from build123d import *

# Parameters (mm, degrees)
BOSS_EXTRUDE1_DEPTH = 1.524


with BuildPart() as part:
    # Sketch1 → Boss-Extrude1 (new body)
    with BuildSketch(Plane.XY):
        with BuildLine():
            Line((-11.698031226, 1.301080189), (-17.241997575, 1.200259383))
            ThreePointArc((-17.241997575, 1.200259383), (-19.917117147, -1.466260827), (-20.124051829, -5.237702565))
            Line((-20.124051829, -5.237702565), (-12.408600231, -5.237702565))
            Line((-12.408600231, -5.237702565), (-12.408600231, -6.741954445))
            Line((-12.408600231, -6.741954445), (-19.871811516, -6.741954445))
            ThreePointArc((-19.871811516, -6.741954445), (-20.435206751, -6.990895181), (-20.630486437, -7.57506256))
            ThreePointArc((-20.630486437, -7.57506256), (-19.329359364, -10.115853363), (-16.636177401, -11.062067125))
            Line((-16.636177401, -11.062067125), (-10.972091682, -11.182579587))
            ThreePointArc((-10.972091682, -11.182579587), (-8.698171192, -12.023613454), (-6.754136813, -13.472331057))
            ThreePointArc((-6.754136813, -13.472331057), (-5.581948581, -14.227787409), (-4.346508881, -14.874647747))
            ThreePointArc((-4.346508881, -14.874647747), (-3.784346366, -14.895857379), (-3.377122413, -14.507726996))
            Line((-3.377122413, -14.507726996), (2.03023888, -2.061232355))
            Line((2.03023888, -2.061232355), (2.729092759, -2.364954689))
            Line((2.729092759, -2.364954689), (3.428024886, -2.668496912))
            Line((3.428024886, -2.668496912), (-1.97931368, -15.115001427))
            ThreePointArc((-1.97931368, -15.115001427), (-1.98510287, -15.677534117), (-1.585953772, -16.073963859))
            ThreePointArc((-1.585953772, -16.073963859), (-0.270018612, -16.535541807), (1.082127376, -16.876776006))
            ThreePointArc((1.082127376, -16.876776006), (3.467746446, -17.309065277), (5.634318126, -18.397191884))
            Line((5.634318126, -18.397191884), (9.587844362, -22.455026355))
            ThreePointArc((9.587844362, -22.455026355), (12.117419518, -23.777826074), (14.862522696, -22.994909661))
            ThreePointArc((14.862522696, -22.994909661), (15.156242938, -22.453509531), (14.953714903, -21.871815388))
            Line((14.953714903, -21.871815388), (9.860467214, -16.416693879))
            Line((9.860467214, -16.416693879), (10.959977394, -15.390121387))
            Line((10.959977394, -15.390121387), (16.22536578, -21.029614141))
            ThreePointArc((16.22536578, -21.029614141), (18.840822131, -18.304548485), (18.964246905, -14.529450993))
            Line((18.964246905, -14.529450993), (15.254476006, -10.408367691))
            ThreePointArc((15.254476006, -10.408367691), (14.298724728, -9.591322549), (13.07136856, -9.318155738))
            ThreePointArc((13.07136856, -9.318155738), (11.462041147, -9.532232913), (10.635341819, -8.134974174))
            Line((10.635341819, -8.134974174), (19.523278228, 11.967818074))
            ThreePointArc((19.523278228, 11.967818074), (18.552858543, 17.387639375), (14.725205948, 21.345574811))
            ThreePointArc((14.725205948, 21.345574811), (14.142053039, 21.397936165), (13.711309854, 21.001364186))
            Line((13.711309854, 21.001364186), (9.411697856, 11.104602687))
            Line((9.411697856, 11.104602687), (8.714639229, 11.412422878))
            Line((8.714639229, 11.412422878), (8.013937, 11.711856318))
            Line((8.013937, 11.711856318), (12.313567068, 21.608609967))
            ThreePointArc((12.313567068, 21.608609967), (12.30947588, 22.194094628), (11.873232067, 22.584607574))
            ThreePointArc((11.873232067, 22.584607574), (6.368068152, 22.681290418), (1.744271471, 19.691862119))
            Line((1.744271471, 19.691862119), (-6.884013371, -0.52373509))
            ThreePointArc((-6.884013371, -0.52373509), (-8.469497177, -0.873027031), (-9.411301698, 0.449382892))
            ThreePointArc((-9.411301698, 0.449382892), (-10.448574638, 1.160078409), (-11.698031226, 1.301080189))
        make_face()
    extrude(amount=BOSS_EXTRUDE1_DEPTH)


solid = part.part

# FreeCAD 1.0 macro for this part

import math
import FreeCAD as App
import Part
import Sketcher
from FreeCAD import Vector
Q = App.Units.Quantity

doc = App.newDocument("Part")
params = doc.addObject("Spreadsheet::Sheet", "Params")
for row, (alias, value) in enumerate([
    ("sketch1_radius", "0.03 in"),
    ("sketch1_radius2", "0.03 in"),
    ("sketch1_length", "0.03 in"),
    ("sketch1_length2", "0.03 in"),
    ("sketch1_length3", "0.03 in"),
    ("pad1_length", "0.06 in"),
], start=1):
    params.set(f"A{row}", alias)
    params.set(f"B{row}", "=" + value)
    params.setAlias(f"B{row}", alias)

body = doc.addObject("PartDesign::Body", "Body")

sketch1 = doc.addObject("Sketcher::SketchObject", "Sketch")
body.addObject(sketch1)
sketch1.AttachmentSupport = (doc.XY_Plane, [""])
sketch1.MapMode = "FlatFace"
sketch1.addGeometry([
    Part.LineSegment(Vector(-11.698031, 1.30108, 0), Vector(-17.241998, 1.200259, 0)),
    Part.ArcOfCircle(Part.Circle(Vector(-15.10191, -3.621864, 0), Vector(0, 0, 1), 5.275685), math.radians(113.931944), math.radians(197.835213)),
    Part.LineSegment(Vector(-20.124052, -5.237703, 0), Vector(-12.4086, -5.237703, 0)),
    Part.LineSegment(Vector(-12.4086, -5.237703, 0), Vector(-12.4086, -6.741954, 0)),
    Part.LineSegment(Vector(-12.4086, -6.741954, 0), Vector(-19.871812, -6.741954, 0)),
    Part.ArcOfCircle(Part.Circle(Vector(-19.871812, -7.503954, 0), Vector(0, 0, 1), 0.762), math.radians(90), math.radians(185.354503)),
    Part.ArcOfCircle(Part.Circle(Vector(-16.797667, -7.21584, 0), Vector(0, 0, 1), 3.849616), math.radians(-174.645716), math.radians(-87.59576)),
    Part.LineSegment(Vector(-16.636177, -11.062067, 0), Vector(-10.972092, -11.18258, 0)),
    Part.ArcOfCircle(Part.Circle(Vector(-12.753955, -19.494779, 0), Vector(0, 0, 1), 8.501041), math.radians(45.107849), math.radians(77.900778)),
    Part.ArcOfCircle(Part.Circle(Vector(2.20638, -0.85606, 0), Vector(0, 0, 1), 15.474533), math.radians(-125.3837), math.radians(-115.053401)),
    Part.ArcOfCircle(Part.Circle(Vector(-4.040314, -14.219605, 0), Vector(0, 0, 1), 0.723075), math.radians(-115.053401), math.radians(-23.482465)),
    Part.LineSegment(Vector(-3.377122, -14.507727, 0), Vector(2.030239, -2.061232, 0)),
    Part.LineSegment(Vector(2.030239, -2.061232, 0), Vector(2.729093, -2.364955, 0)),
    Part.LineSegment(Vector(2.729093, -2.364955, 0), Vector(3.428025, -2.668497, 0)),
    Part.LineSegment(Vector(3.428025, -2.668497, 0), Vector(-1.979314, -15.115001, 0)),
    Part.ArcOfCircle(Part.Circle(Vector(-1.316122, -15.403123, 0), Vector(0, 0, 1), 0.723075), math.radians(156.517639), math.radians(248.088575)),
    Part.ArcOfCircle(Part.Circle(Vector(4.188721, -1.717282, 0), Vector(0, 0, 1), 15.474533), math.radians(-111.911425), math.radians(-101.581126)),
    Part.ArcOfCircle(Part.Circle(Vector(0.774669, -25.372255, 0), Vector(0, 0, 1), 8.501041), math.radians(55.134396), math.radians(87.927324)),
    Part.LineSegment(Vector(5.634318, -18.397192, 0), Vector(9.587844, -22.455026, 0)),
    Part.ArcOfCircle(Part.Circle(Vector(12.509394, -19.948218, 0), Vector(0, 0, 1), 3.849616), math.radians(-139.369067), math.radians(-52.319111)),
    Part.ArcOfCircle(Part.Circle(Vector(14.396743, -22.39184, 0), Vector(0, 0, 1), 0.762), math.radians(-52.319329), math.radians(43.035174)),
    Part.LineSegment(Vector(14.953715, -21.871815, 0), Vector(9.860467, -16.416694, 0)),
    Part.LineSegment(Vector(9.860467, -16.416694, 0), Vector(10.959977, -15.390121, 0)),
    Part.LineSegment(Vector(10.959977, -15.390121, 0), Vector(16.225366, -21.029614, 0)),
    Part.ArcOfCircle(Part.Circle(Vector(13.979092, -16.25603, 0), Vector(0, 0, 1), 5.275685), math.radians(-64.800039), math.radians(19.10323)),
    Part.LineSegment(Vector(18.964247, -14.529451, 0), Vector(15.254476, -10.408368, 0)),
    Part.ArcOfCircle(Part.Circle(Vector(13.136806, -11.91802, 0), Vector(0, 0, 1), 2.600688), math.radians(35.484452), math.radians(91.441803)),
    Part.ArcOfCircle(Part.Circle(Vector(12.104883, -8.208699, 0), Vector(0, 0, 1), 1.47139), math.radians(177.127952), math.radians(311.060228)),
    Part.LineSegment(Vector(10.635342, -8.134974, 0), Vector(19.523278, 11.967818, 0)),
    Part.ArcOfCircle(Part.Circle(Vector(10.14384, 13.085216, 0), Vector(0, 0, 1), 9.445763), math.radians(-6.793782), math.radians(60.986341)),
    Part.ArcOfCircle(Part.Circle(Vector(14.374502, 20.713243, 0), Vector(0, 0, 1), 0.723075), math.radians(60.986341), math.radians(156.517639)),
    Part.LineSegment(Vector(13.71131, 21.001364, 0), Vector(9.411698, 11.104603, 0)),
    Part.LineSegment(Vector(9.411698, 11.104603, 0), Vector(8.714639, 11.412423, 0)),
    Part.LineSegment(Vector(8.714639, 11.412423, 0), Vector(8.013937, 11.711856, 0)),
    Part.LineSegment(Vector(8.013937, 11.711856, 0), Vector(12.313567, 21.60861, 0)),
    Part.ArcOfCircle(Part.Circle(Vector(11.650376, 21.896732, 0), Vector(0, 0, 1), 0.723075), math.radians(-23.482466), math.radians(72.048832)),
    Part.ArcOfCircle(Part.Circle(Vector(8.961988, 13.598668, 0), Vector(0, 0, 1), 9.445763), math.radians(72.048832), math.radians(139.828955)),
    Part.LineSegment(Vector(1.744271, 19.691862, 0), Vector(-6.884013, -0.523735, 0)),
    Part.ArcOfCircle(Part.Circle(Vector(-7.940786, 0.500091, 0), Vector(0, 0, 1), 1.47139), math.radians(-178.025054), math.radians(-44.092779)),
    Part.ArcOfCircle(Part.Circle(Vector(-11.356291, -1.277057, 0), Vector(0, 0, 1), 2.600688), math.radians(41.59337), math.radians(97.550722)),
], False)
sketch1.addConstraint([
    Sketcher.Constraint("Coincident", 0, 2, 1, 1),
    Sketcher.Constraint("Coincident", 1, 2, 2, 1),
    Sketcher.Constraint("Coincident", 2, 2, 3, 1),
    Sketcher.Constraint("Coincident", 3, 2, 4, 1),
    Sketcher.Constraint("Coincident", 4, 2, 5, 1),
    Sketcher.Constraint("Coincident", 5, 2, 6, 1),
    Sketcher.Constraint("Coincident", 6, 2, 7, 1),
    Sketcher.Constraint("Coincident", 7, 2, 8, 2),
    Sketcher.Constraint("Coincident", 8, 1, 9, 1),
    Sketcher.Constraint("Coincident", 9, 2, 10, 1),
    Sketcher.Constraint("Coincident", 10, 2, 11, 1),
    Sketcher.Constraint("Coincident", 11, 2, 12, 1),
    Sketcher.Constraint("Coincident", 12, 2, 13, 1),
    Sketcher.Constraint("Coincident", 13, 2, 14, 1),
    Sketcher.Constraint("Coincident", 14, 2, 15, 1),
    Sketcher.Constraint("Coincident", 15, 2, 16, 1),
    Sketcher.Constraint("Coincident", 16, 2, 17, 2),
    Sketcher.Constraint("Coincident", 17, 1, 18, 1),
    Sketcher.Constraint("Coincident", 18, 2, 19, 1),
    Sketcher.Constraint("Coincident", 19, 2, 20, 1),
    Sketcher.Constraint("Coincident", 20, 2, 21, 1),
    Sketcher.Constraint("Coincident", 21, 2, 22, 1),
    Sketcher.Constraint("Coincident", 22, 2, 23, 1),
    Sketcher.Constraint("Coincident", 23, 2, 24, 1),
    Sketcher.Constraint("Coincident", 24, 2, 25, 1),
    Sketcher.Constraint("Coincident", 25, 2, 26, 1),
    Sketcher.Constraint("Coincident", 26, 2, 27, 2),
    Sketcher.Constraint("Coincident", 27, 1, 28, 1),
    Sketcher.Constraint("Coincident", 28, 2, 29, 1),
    Sketcher.Constraint("Coincident", 29, 2, 30, 1),
    Sketcher.Constraint("Coincident", 30, 2, 31, 1),
    Sketcher.Constraint("Coincident", 31, 2, 32, 1),
    Sketcher.Constraint("Coincident", 32, 2, 33, 1),
    Sketcher.Constraint("Coincident", 33, 2, 34, 1),
    Sketcher.Constraint("Coincident", 34, 2, 35, 1),
    Sketcher.Constraint("Coincident", 35, 2, 36, 1),
    Sketcher.Constraint("Coincident", 36, 2, 37, 1),
    Sketcher.Constraint("Coincident", 37, 2, 38, 2),
    Sketcher.Constraint("Coincident", 38, 1, 39, 1),
    Sketcher.Constraint("Coincident", 39, 2, 0, 1),
    Sketcher.Constraint("Horizontal", 2),
    Sketcher.Constraint("Vertical", 3),
    Sketcher.Constraint("Horizontal", 4),
    Sketcher.Constraint("Radius", 5, Q("0.03 in")),
    Sketcher.Constraint("Radius", 20, Q("0.03 in")),
    Sketcher.Constraint("Distance", 12, Q("0.03 in")),
    Sketcher.Constraint("Distance", 13, Q("0.03 in")),
    Sketcher.Constraint("Distance", 32, Q("0.03 in")),
    Sketcher.Constraint("Distance", 33, Q("0.03 in")),
    Sketcher.Constraint("Radius", 8, 8.501041),
    Sketcher.Constraint("Radius", 17, 8.501041),
    Sketcher.Constraint("Radius", 27, 1.47139),
    Sketcher.Constraint("Radius", 38, 1.47139),
    Sketcher.Constraint("Radius", 1, 5.275685),
    Sketcher.Constraint("Radius", 6, 3.849616),
    Sketcher.Constraint("Radius", 9, 15.474533),
    Sketcher.Constraint("Radius", 10, 0.723075),
    Sketcher.Constraint("Radius", 15, 0.723075),
    Sketcher.Constraint("Radius", 16, 15.474533),
    Sketcher.Constraint("Radius", 19, 3.849616),
    Sketcher.Constraint("Radius", 24, 5.275685),
    Sketcher.Constraint("Radius", 26, 2.600688),
    Sketcher.Constraint("Radius", 29, 9.445763),
    Sketcher.Constraint("Radius", 30, 0.723075),
    Sketcher.Constraint("Radius", 35, 0.723075),
    Sketcher.Constraint("Radius", 36, 9.445763),
    Sketcher.Constraint("Radius", 39, 2.600688),
    Sketcher.Constraint("DistanceX", 2, 1, 2, 2, 7.715452),
    Sketcher.Constraint("DistanceX", 4, 2, 4, 1, 7.463211),
    Sketcher.Constraint("DistanceY", 3, 2, 3, 1, 1.504252),
    Sketcher.Constraint("DistanceY", 27, 3, -1, 1, 8.208699),
    Sketcher.Constraint("DistanceX", -1, 1, 30, 3, 14.374502),
    Sketcher.Constraint("DistanceX", 2, 2, -1, 1, 12.4086),
    Sketcher.Constraint("DistanceY", 14, 2, -1, 1, 15.115001),
    Sketcher.Constraint("DistanceX", 38, 1, -1, 1, 9.411302),
    Sketcher.Constraint("DistanceX", 5, 3, 1, 3, 4.769902),
    Sketcher.Constraint("DistanceX", 15, 3, 9, 3, 3.522502),
    Sketcher.Constraint("DistanceY", 16, 3, 29, 3, 14.802498),
    Sketcher.Constraint("DistanceY", 6, 3, 0, 2, 8.416099),
    Sketcher.Constraint("DistanceX", 4, 2, 1, 3, 4.769902),
    Sketcher.Constraint("DistanceY", 5, 2, 1, 3, 3.953199),
    Sketcher.Constraint("DistanceX", 10, 2, 15, 3, 2.061),
    Sketcher.Constraint("DistanceX", 10, 3, 14, 2, 2.061),
    Sketcher.Constraint("DistanceX", 18, 2, 20, 3, 4.808898),
    Sketcher.Constraint("DistanceY", 17, 1, 21, 2, 1.980498),
    Sketcher.Constraint("DistanceY", 22, 2, 26, 3, 3.472101),
    Sketcher.Constraint("DistanceY", 20, 2, 23, 2, 0.842201),
    Sketcher.Constraint("DistanceX", 22, 2, 25, 2, 4.294499),
    Sketcher.Constraint("DistanceY", 16, 3, 28, 2, 13.6851),
    Sketcher.Constraint("DistanceX", 32, 2, 29, 3, 1.4292),
    Sketcher.Constraint("Distance", 21, 7.463211),
    Sketcher.Constraint("Distance", 22, 1.504252),
    Sketcher.Constraint("Distance", 23, 7.715452),
    Sketcher.Constraint("Distance", 31, 10.790392),
    Sketcher.Constraint("Distance", 34, 10.790392),
    Sketcher.Constraint("DistanceY", 6, 3, -1, 1, 7.21584),
    Sketcher.Constraint("DistanceY", 8, 3, -1, 1, 19.494779),
    Sketcher.Constraint("DistanceX", -1, 1, 9, 3, 2.20638),
    Sketcher.Constraint("DistanceY", 9, 3, -1, 1, 0.85606),
    Sketcher.Constraint("DistanceX", -1, 1, 16, 3, 4.188721),
    Sketcher.Constraint("DistanceX", -1, 1, 17, 3, 0.774669),
    Sketcher.Constraint("DistanceY", 20, 3, -1, 1, 22.39184),
    Sketcher.Constraint("DistanceX", -1, 1, 24, 3, 13.979092),
    Sketcher.Constraint("DistanceY", 24, 3, -1, 1, 16.25603),
    Sketcher.Constraint("DistanceY", 26, 3, -1, 1, 11.91802),
    Sketcher.Constraint("DistanceX", -1, 1, 29, 3, 10.14384),
    Sketcher.Constraint("DistanceX", -1, 1, 36, 3, 8.961988),
    Sketcher.Constraint("DistanceY", -1, 1, 36, 3, 13.598668),
    Sketcher.Constraint("DistanceY", -1, 1, 38, 3, 0.500091),
    Sketcher.Constraint("DistanceX", 39, 3, -1, 1, 11.356291),
    Sketcher.Constraint("DistanceX", 7, 2, -1, 1, 10.972092),
    Sketcher.Constraint("DistanceY", 7, 2, -1, 1, 11.18258),
    Sketcher.Constraint("DistanceX", 9, 2, -1, 1, 4.346509),
    Sketcher.Constraint("DistanceX", -1, 1, 11, 2, 2.030239),
    Sketcher.Constraint("DistanceX", -1, 1, 17, 1, 5.634318),
    Sketcher.Constraint("DistanceY", 17, 1, -1, 1, 18.397192),
    Sketcher.Constraint("DistanceY", 19, 2, -1, 1, 22.99491),
    Sketcher.Constraint("DistanceY", 24, 2, -1, 1, 14.529451),
    Sketcher.Constraint("DistanceX", -1, 1, 26, 2, 13.071369),
    Sketcher.Constraint("DistanceX", -1, 1, 27, 1, 10.635342),
    Sketcher.Constraint("DistanceY", -1, 1, 28, 2, 11.967818),
    Sketcher.Constraint("DistanceX", -1, 1, 30, 2, 13.71131),
    Sketcher.Constraint("DistanceY", -1, 1, 34, 2, 21.60861),
    Sketcher.Constraint("DistanceX", -1, 1, 36, 2, 1.744271),
    Sketcher.Constraint("DistanceX", 39, 2, -1, 1, 11.698031),
    Sketcher.Constraint("DistanceY", -1, 1, 39, 2, 1.30108),
    Sketcher.Constraint("DistanceY", 10, 3, 1, 3, 10.597741),
    Sketcher.Constraint("DistanceX", 10, 3, 19, 3, 16.549708),
    Sketcher.Constraint("DistanceY", 19, 3, 9, 3, 19.092158),
    Sketcher.Constraint("DistanceX", 19, 3, 26, 3, 0.627411),
    Sketcher.Constraint("DistanceY", 30, 3, 35, 3, 1.183489),
    Sketcher.Constraint("DistanceX", 6, 3, 6, 2, 0.16149),
    Sketcher.Constraint("DistanceY", 11, 2, 16, 3, 0.34395),
    Sketcher.Constraint("DistanceX", 12, 2, 16, 3, 1.459628),
    Sketcher.Constraint("DistanceX", 13, 2, 27, 3, 8.676858),
    Sketcher.Constraint("DistanceX", 15, 2, 15, 3, 0.269832),
    Sketcher.Constraint("DistanceY", 30, 3, 29, 2, 0.632332),
    Sketcher.Constraint("DistanceX", 31, 2, 29, 3, 0.732142),
    Sketcher.Constraint("DistanceX", 35, 2, 30, 3, 2.50127),
    Sketcher.Constraint("DistanceY", 39, 3, 37, 2, 0.753322),
])
sketch1.setExpression("Constraints[43]", "Params.sketch1_radius")
sketch1.setExpression("Constraints[44]", "Params.sketch1_radius2")
sketch1.setExpression("Constraints[45]", "Params.sketch1_length")
sketch1.setExpression("Constraints[46]", "Params.sketch1_length2")
sketch1.setExpression("Constraints[47]", "Params.sketch1_length3")
pad1 = doc.addObject("PartDesign::Pad", "Pad")
body.addObject(pad1)
pad1.Profile = sketch1
pad1.setExpression("Length", "Params.pad1_length")

doc.recompute()
